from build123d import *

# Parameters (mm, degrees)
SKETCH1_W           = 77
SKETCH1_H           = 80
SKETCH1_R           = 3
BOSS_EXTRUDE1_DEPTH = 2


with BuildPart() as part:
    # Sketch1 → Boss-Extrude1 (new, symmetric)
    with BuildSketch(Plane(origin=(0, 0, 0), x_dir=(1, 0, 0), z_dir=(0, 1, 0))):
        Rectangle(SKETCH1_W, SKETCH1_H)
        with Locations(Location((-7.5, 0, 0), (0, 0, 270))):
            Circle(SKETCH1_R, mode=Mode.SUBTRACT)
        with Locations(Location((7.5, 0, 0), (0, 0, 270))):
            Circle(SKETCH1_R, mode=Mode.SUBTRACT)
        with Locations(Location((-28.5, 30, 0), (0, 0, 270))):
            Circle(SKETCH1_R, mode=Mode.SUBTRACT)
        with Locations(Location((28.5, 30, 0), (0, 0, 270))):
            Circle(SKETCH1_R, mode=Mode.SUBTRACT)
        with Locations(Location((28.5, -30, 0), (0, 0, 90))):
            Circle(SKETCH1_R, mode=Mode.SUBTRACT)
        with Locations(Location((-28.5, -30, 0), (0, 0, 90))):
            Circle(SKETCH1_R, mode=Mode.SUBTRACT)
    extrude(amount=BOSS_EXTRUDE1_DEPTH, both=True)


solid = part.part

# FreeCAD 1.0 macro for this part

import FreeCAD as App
import Part
import Sketcher

V = App.Vector
Q = App.Units.Quantity

doc = App.newDocument("Part")
body = doc.addObject("PartDesign::Body", "Body")

sketch1 = body.newObject("Sketcher::SketchObject", "Sketch")
sketch1.AttachmentSupport = (doc.getObject("XZ_Plane"), [""])
sketch1.MapMode = "FlatFace"
sketch1.addGeometry(Part.LineSegment(V(-38.5, -40, 0), V(-38.5, 40, 0)), False)
sketch1.addGeometry(Part.LineSegment(V(-38.5, 40, 0), V(38.5, 40, 0)), False)
sketch1.addGeometry(Part.LineSegment(V(38.5, 40, 0), V(38.5, -40, 0)), False)
sketch1.addGeometry(Part.LineSegment(V(38.5, -40, 0), V(-38.5, -40, 0)), False)
sketch1.addGeometry(Part.Circle(V(-28.5, 30, 0), V(0, 0, 1), 3), False)
sketch1.addGeometry(Part.Circle(V(28.5, 30, 0), V(0, 0, 1), 3), False)
sketch1.addGeometry(Part.Circle(V(-7.5, 0, 0), V(0, 0, 1), 3), False)
sketch1.addGeometry(Part.Circle(V(-28.5, -30, 0), V(0, 0, 1), 3), False)
sketch1.addGeometry(Part.Circle(V(7.5, 0, 0), V(0, 0, 1), 3), False)
sketch1.addGeometry(Part.Circle(V(28.5, -30, 0), V(0, 0, 1), 3), False)
sketch1.addConstraint(Sketcher.Constraint("Coincident", 0, 2, 1, 1))
sketch1.addConstraint(Sketcher.Constraint("Coincident", 1, 2, 2, 1))
sketch1.addConstraint(Sketcher.Constraint("Coincident", 2, 2, 3, 1))
sketch1.addConstraint(Sketcher.Constraint("Coincident", 3, 2, 0, 1))
sketch1.addConstraint(Sketcher.Constraint("Vertical", 0))
sketch1.addConstraint(Sketcher.Constraint("Horizontal", 1))
sketch1.addConstraint(Sketcher.Constraint("Vertical", 2))
sketch1.addConstraint(Sketcher.Constraint("Horizontal", 3))
sketch1.addConstraint(Sketcher.Constraint("Equal", 4, 5))
sketch1.addConstraint(Sketcher.Constraint("Equal", 5, 6))
sketch1.addConstraint(Sketcher.Constraint("Equal", 6, 7))
sketch1.addConstraint(Sketcher.Constraint("Equal", 7, 8))
sketch1.addConstraint(Sketcher.Constraint("Equal", 8, 9))
sketch1.addConstraint(Sketcher.Constraint("Symmetric", 5, 3, 7, 3, -1, 1))
sketch1.addConstraint(Sketcher.Constraint("Symmetric", 6, 3, 8, 3, -1, 1))
sketch1.addConstraint(Sketcher.Constraint("Symmetric", 4, 3, 9, 3, -1, 1))
sketch1.addConstraint(Sketcher.Constraint("Symmetric", 0, 2, 2, 2, -1, 1))
sketch1.addConstraint(Sketcher.Constraint("Symmetric", 4, 3, 5, 3, -2))
sketch1.addConstraint(Sketcher.Constraint("PointOnObject", 6, 3, -1))
sketch1.addConstraint(Sketcher.Constraint("Diameter", 4, Q("6 mm")))
sketch1.addConstraint(Sketcher.Constraint("DistanceX", 1, 1, 1, 2, Q("77 mm")))
sketch1.addConstraint(Sketcher.Constraint("DistanceY", 0, 1, 0, 2, Q("80 mm")))
sketch1.addConstraint(Sketcher.Constraint("DistanceY", -1, 1, 4, 3, Q("30 mm")))
sketch1.addConstraint(Sketcher.Constraint("DistanceX", 4, 3, 5, 3, Q("57 mm")))
sketch1.addConstraint(Sketcher.Constraint("DistanceX", 4, 3, 6, 3, Q("21 mm")))
pad1 = body.newObject("PartDesign::Pad", "Pad")
pad1.Profile = sketch1
pad1.Length = 4
pad1.Midplane = True

doc.recompute()
